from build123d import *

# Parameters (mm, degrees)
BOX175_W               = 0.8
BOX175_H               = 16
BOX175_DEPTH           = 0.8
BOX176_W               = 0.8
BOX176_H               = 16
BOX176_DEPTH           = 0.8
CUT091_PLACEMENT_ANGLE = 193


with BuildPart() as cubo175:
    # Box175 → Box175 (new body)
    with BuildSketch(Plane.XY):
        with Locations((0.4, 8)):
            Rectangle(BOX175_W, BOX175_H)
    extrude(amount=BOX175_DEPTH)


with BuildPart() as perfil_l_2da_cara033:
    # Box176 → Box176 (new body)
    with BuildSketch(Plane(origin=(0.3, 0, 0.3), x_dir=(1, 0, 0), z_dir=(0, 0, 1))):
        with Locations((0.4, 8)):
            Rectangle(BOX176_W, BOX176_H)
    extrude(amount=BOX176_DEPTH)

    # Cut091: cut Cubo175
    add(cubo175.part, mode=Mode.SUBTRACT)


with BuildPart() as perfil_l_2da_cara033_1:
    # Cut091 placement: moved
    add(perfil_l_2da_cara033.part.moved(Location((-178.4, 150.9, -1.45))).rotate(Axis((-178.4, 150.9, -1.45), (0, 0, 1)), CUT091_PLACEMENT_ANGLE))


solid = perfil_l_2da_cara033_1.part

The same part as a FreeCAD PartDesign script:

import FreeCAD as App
import Part
import Sketcher

V = App.Vector
Q = App.Units.Quantity

doc = App.newDocument("Part")
body = doc.addObject("PartDesign::Body", "Body")

# Sketch on XY plane
sketch1 = doc.addObject("Sketcher::SketchObject", "Sketch")
body.addObject(sketch1)
sketch1.AttachmentSupport = (doc.XY_Plane, [""])
sketch1.MapMode = "FlatFace"
sketch1.addGeometry([
    Part.LineSegment(V(0, 16, 0), V(0, 0, 0)),
    Part.LineSegment(V(0, 0, 0), V(0.8, 0, 0)),
    Part.LineSegment(V(0.8, 0, 0), V(0.8, 16, 0)),
    Part.LineSegment(V(0.8, 16, 0), V(0, 16, 0)),
], False)
sketch1.addConstraint([
    Sketcher.Constraint("Coincident", 0, 2, 1, 1),
    Sketcher.Constraint("Coincident", 1, 2, 2, 1),
    Sketcher.Constraint("Coincident", 2, 2, 3, 1),
    Sketcher.Constraint("Coincident", 3, 2, 0, 1),
    Sketcher.Constraint("Vertical", 0),
    Sketcher.Constraint("Horizontal", 1),
    Sketcher.Constraint("Vertical", 2),
    Sketcher.Constraint("Horizontal", 3),
    Sketcher.Constraint("Coincident", 0, 2, -1, 1),
    Sketcher.Constraint("DistanceY", 0, 2, 0, 1, Q("16 mm")),
    Sketcher.Constraint("DistanceX", 1, 1, 1, 2, Q("0.8 mm")),
])
pad1 = doc.addObject("PartDesign::Pad", "Pad")
body.addObject(pad1)
pad1.Profile = sketch1
pad1.Length = 0.8
body2 = doc.addObject("PartDesign::Body", "Body001")

# Sketch on XY plane
sketch2 = doc.addObject("Sketcher::SketchObject", "Sketch001")
body2.addObject(sketch2)
sketch2.AttachmentSupport = (doc.getObject("XY_Plane001"), [""])
sketch2.MapMode = "FlatFace"
sketch2.AttachmentOffset = App.Placement(V(0, 0, 0.3), App.Rotation())
sketch2.addGeometry([
    Part.LineSegment(V(0.3, 16, 0), V(0.3, 0, 0)),
    Part.LineSegment(V(0.3, 0, 0), V(1.1, 0, 0)),
    Part.LineSegment(V(1.1, 0, 0), V(1.1, 16, 0)),
    Part.LineSegment(V(1.1, 16, 0), V(0.3, 16, 0)),
], False)
sketch2.addConstraint([
    Sketcher.Constraint("Coincident", 0, 2, 1, 1),
    Sketcher.Constraint("Coincident", 1, 2, 2, 1),
    Sketcher.Constraint("Coincident", 2, 2, 3, 1),
    Sketcher.Constraint("Coincident", 3, 2, 0, 1),
    Sketcher.Constraint("Vertical", 0),
    Sketcher.Constraint("Horizontal", 1),
    Sketcher.Constraint("Vertical", 2),
    Sketcher.Constraint("Horizontal", 3),
    Sketcher.Constraint("PointOnObject", 0, 2, -1),
    Sketcher.Constraint("DistanceY", 0, 2, 0, 1, Q("16 mm")),
    Sketcher.Constraint("DistanceX", 1, 1, 1, 2, Q("0.8 mm")),
    Sketcher.Constraint("DistanceX", -1, 1, 0, 2, Q("0.3 mm")),
])
pad2 = doc.addObject("PartDesign::Pad", "Pad001")
body2.addObject(pad2)
pad2.Profile = sketch2
pad2.Length = 0.8
doc.recompute()

boolean = doc.addObject("PartDesign::Boolean", "Boolean")
body2.addObject(boolean)
boolean.Type = "Cut"
boolean.addObjects([body])
body3 = doc.addObject("PartDesign::Body", "Body002")
doc.recompute()

body2.Placement = App.Placement(V(-178.4, 150.9, -1.45), App.Rotation(V(0, 0, 1), 193))
boolean2 = doc.addObject("PartDesign::Boolean", "Boolean001")
body3.addObject(boolean2)
boolean2.Type = "Fuse"
boolean2.addObjects([body2])

doc.recompute()
